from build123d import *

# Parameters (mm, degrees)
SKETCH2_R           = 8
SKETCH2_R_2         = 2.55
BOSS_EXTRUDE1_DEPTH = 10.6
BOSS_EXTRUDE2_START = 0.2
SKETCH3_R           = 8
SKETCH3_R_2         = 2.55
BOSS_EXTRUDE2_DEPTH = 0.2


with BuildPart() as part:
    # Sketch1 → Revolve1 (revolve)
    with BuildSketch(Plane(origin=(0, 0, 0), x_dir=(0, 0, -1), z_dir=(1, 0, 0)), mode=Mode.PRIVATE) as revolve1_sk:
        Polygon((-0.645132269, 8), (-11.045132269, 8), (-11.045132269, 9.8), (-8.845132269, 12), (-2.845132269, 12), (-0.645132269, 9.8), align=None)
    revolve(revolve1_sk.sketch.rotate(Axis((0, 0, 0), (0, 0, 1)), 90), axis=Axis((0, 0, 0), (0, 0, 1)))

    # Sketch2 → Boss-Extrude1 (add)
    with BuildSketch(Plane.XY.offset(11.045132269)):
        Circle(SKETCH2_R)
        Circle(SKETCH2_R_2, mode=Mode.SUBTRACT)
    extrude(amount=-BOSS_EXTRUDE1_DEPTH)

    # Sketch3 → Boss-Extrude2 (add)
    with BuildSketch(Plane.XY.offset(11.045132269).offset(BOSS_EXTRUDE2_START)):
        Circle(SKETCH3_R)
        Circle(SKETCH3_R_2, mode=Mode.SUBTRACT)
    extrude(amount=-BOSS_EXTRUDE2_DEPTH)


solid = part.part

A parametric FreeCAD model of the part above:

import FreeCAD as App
import Part
import Sketcher

V = App.Vector
Q = App.Units.Quantity

doc = App.newDocument("Part")
body = doc.addObject("PartDesign::Body", "Body")

# Sketch on YZ plane
sketch1 = body.newObject("Sketcher::SketchObject", "Sketch")
sketch1.AttachmentSupport = (doc.getObject("YZ_Plane"), [""])
sketch1.MapMode = "FlatFace"
sketch1.addGeometry([
    Part.LineSegment(V(8, 11, 0), V(8, 0.6, 0)),  # 0
    Part.LineSegment(V(8, 0.6, 0), V(9.8, 0.6, 0)),  # 1
    Part.LineSegment(V(9.8, 0.6, 0), V(12, 2.8, 0)),  # 2
    Part.LineSegment(V(12, 2.8, 0), V(12, 8.8, 0)),  # 3
    Part.LineSegment(V(12, 8.8, 0), V(9.8, 11, 0)),  # 4
    Part.LineSegment(V(9.8, 11, 0), V(8, 11, 0)),  # 5
], False)
sketch1.addConstraint([
    Sketcher.Constraint("Coincident", 0, 2, 1, 1),
    Sketcher.Constraint("Coincident", 1, 2, 2, 1),
    Sketcher.Constraint("Coincident", 2, 2, 3, 1),
    Sketcher.Constraint("Coincident", 3, 2, 4, 1),
    Sketcher.Constraint("Coincident", 4, 2, 5, 1),
    Sketcher.Constraint("Coincident", 5, 2, 0, 1),
    Sketcher.Constraint("Vertical", 0),
    Sketcher.Constraint("Horizontal", 1),
    Sketcher.Constraint("Vertical", 3),
    Sketcher.Constraint("Horizontal", 5),
    Sketcher.Constraint("Perpendicular", 2, 4),
    Sketcher.Constraint("Vertical", 1, 2, 4, 2),
    Sketcher.Constraint("Equal", 2, 4),
    Sketcher.Constraint("DistanceY", 3, 1, 3, 2, Q("6 mm")),
    Sketcher.Constraint("DistanceX", 1, 1, 1, 2, Q("1.8 mm")),
    Sketcher.Constraint("DistanceY", 0, 2, 0, 1, Q("10.4 mm")),
    Sketcher.Constraint("DistanceX", -1, 1, 0, 2, Q("8 mm")),
    Sketcher.Constraint("DistanceY", -1, 1, 0, 2, Q("0.645132 mm")),
])
revolution = body.newObject("PartDesign::Revolution", "Revolution")
revolution.Profile = sketch1
revolution.ReferenceAxis = (sketch1, ["V_Axis"])
revolution.Angle = 360

# Sketch on XY plane
sketch2 = body.newObject("Sketcher::SketchObject", "Sketch001")
sketch2.AttachmentSupport = (doc.getObject("XY_Plane"), [""])
sketch2.MapMode = "FlatFace"
sketch2.AttachmentOffset = App.Placement(V(0, 0, 11.045132), App.Rotation())
sketch2.addGeometry([
    Part.Circle(V(0, 0, 0), V(0, 0, 1), 8),
    Part.Circle(V(0, 0, 0), V(0, 0, 1), 2.5),
], False)
sketch2.addConstraint([
    Sketcher.Constraint("Coincident", 0, 3, -1, 1),
    Sketcher.Constraint("Coincident", 1, 3, -1, 1),
    Sketcher.Constraint("Diameter", 0, Q("16 mm")),
    Sketcher.Constraint("Diameter", 1, Q("5.1 mm")),
])
pad1 = body.newObject("PartDesign::Pad", "Pad")
pad1.Profile = sketch2
pad1.Length = 10.6
pad1.Reversed = True

# Sketch on XY plane
sketch3 = body.newObject("Sketcher::SketchObject", "Sketch002")
sketch3.AttachmentSupport = (doc.getObject("XY_Plane"), [""])
sketch3.MapMode = "FlatFace"
sketch3.AttachmentOffset = App.Placement(V(0, 0, 11.245132), App.Rotation())
sketch3.addGeometry([
    Part.Circle(V(0, 0, 0), V(0, 0, 1), 8),
    Part.Circle(V(0, 0, 0), V(0, 0, 1), 2.5),
], False)
sketch3.addConstraint([
    Sketcher.Constraint("Coincident", 0, 3, -1, 1),
    Sketcher.Constraint("Coincident", 1, 3, -1, 1),
    Sketcher.Constraint("Diameter", 0, Q("16 mm")),
    Sketcher.Constraint("Diameter", 1, Q("5.1 mm")),
])
pad2 = body.newObject("PartDesign::Pad", "Pad001")
pad2.Profile = sketch3
pad2.Length = 0.2
pad2.Reversed = True

doc.recompute()
